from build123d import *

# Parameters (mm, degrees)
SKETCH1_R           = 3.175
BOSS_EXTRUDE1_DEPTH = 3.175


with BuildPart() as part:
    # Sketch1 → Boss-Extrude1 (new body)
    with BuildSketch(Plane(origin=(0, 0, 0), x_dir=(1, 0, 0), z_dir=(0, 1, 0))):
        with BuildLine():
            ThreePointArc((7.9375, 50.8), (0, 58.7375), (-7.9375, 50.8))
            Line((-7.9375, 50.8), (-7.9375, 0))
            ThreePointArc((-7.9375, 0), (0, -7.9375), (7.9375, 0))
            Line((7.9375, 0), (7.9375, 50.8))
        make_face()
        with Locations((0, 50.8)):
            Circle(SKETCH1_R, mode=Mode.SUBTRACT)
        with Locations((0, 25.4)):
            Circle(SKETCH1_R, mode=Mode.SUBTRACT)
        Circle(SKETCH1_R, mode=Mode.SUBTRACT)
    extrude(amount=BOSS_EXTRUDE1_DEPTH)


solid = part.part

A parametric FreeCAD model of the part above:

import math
import FreeCAD as App
import Part
import Sketcher
Q = App.Units.Quantity

doc = App.newDocument("Part")
body = doc.addObject("PartDesign::Body", "Body")

# Sketch on XZ plane
sketch1 = body.newObject("Sketcher::SketchObject", "Sketch")
sketch1.AttachmentSupport = (doc.getObject("XZ_Plane"), [""])
sketch1.MapMode = "FlatFace"
sketch1.addGeometry(Part.ArcOfCircle(Part.Circle(App.Vector(0, -50.8, 0), App.Vector(0, 0, 1), 7.9), math.radians(180), math.radians(360)), False)
sketch1.addGeometry(Part.LineSegment(App.Vector(-7.9, -50.8, 0), App.Vector(-7.9, 0, 0)), False)
sketch1.addGeometry(Part.ArcOfCircle(Part.Circle(App.Vector(0, 0, 0), App.Vector(0, 0, 1), 7.9), math.radians(0), math.radians(180)), False)
sketch1.addGeometry(Part.LineSegment(App.Vector(7.9, 0, 0), App.Vector(7.9, -50.8, 0)), False)
sketch1.addGeometry(Part.Circle(App.Vector(0, 0, 0), App.Vector(0, 0, 1), 3.2), False)
sketch1.addGeometry(Part.Circle(App.Vector(0, -25.4, 0), App.Vector(0, 0, 1), 3.2), False)
sketch1.addGeometry(Part.Circle(App.Vector(0, -50.8, 0), App.Vector(0, 0, 1), 3.2), False)
sketch1.addConstraint(Sketcher.Constraint("Tangent", 0, 1, 1, 1))
sketch1.addConstraint(Sketcher.Constraint("Tangent", 1, 2, 2, 2))
sketch1.addConstraint(Sketcher.Constraint("Tangent", 2, 1, 3, 1))
sketch1.addConstraint(Sketcher.Constraint("Tangent", 3, 2, 0, 2))
sketch1.addConstraint(Sketcher.Constraint("Vertical", 1))
sketch1.addConstraint(Sketcher.Constraint("Vertical", 3))
sketch1.addConstraint(Sketcher.Constraint("Coincident", 2, 3, -1, 1))
sketch1.addConstraint(Sketcher.Constraint("Coincident", 4, 3, -1, 1))
sketch1.addConstraint(Sketcher.Constraint("Coincident", 6, 3, 0, 3))
sketch1.addConstraint(Sketcher.Constraint("Equal", 4, 5))
sketch1.addConstraint(Sketcher.Constraint("Equal", 5, 6))
sketch1.addConstraint(Sketcher.Constraint("PointOnObject", 5, 3, -2))
sketch1.addConstraint(Sketcher.Constraint("Diameter", 4, Q("0.25 in")))
sketch1.addConstraint(Sketcher.Constraint("DistanceY", 1, 1, 1, 2, Q("2 in")))
sketch1.addConstraint(Sketcher.Constraint("DistanceY", 5, 3, -1, 1, Q("1 in")))
sketch1.addConstraint(Sketcher.Constraint("Radius", 0, Q("0.3125 in")))
pad1 = body.newObject("PartDesign::Pad", "Pad")
pad1.Profile = sketch1
pad1.Length = Q("0.125 in")
pad1.Reversed = True

doc.recompute()
